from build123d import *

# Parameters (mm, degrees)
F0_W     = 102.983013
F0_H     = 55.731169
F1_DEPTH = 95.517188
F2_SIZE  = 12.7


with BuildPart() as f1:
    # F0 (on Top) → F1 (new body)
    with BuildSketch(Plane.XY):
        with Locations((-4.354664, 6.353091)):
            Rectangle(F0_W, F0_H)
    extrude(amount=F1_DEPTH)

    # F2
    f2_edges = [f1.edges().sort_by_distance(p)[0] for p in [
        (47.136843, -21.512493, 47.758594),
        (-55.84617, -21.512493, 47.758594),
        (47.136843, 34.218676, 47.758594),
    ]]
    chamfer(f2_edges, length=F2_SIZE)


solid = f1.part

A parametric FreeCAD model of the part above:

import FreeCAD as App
import Part
import Sketcher

V = App.Vector
Q = App.Units.Quantity


def edges_at(feature, points):
    """Names of the edges that pass closest to the given points."""
    edges = feature.Shape.Edges
    near = lambda p: min(range(len(edges)), key=lambda i: edges[i].distToShape(Part.Vertex(*p))[0])
    return sorted({f"Edge{near(p) + 1}" for p in points})

doc = App.newDocument("Part")
body = doc.addObject("PartDesign::Body", "Body")

# Sketch on XY plane
sketch1 = body.newObject("Sketcher::SketchObject", "Sketch")
sketch1.AttachmentSupport = (doc.getObject("XY_Plane"), [""])
sketch1.MapMode = "FlatFace"
sketch1.addGeometry([
    Part.LineSegment(V(-56, 34, 0), V(-56, -22, 0)),
    Part.LineSegment(V(-56, -22, 0), V(47, -22, 0)),
    Part.LineSegment(V(47, -22, 0), V(47, 34, 0)),
    Part.LineSegment(V(47, 34, 0), V(-56, 34, 0)),
], False)
sketch1.addConstraint([
    Sketcher.Constraint("Coincident", 0, 2, 1, 1),
    Sketcher.Constraint("Coincident", 1, 2, 2, 1),
    Sketcher.Constraint("Coincident", 2, 2, 3, 1),
    Sketcher.Constraint("Coincident", 3, 2, 0, 1),
    Sketcher.Constraint("Vertical", 0),
    Sketcher.Constraint("Horizontal", 1),
    Sketcher.Constraint("Vertical", 2),
    Sketcher.Constraint("Horizontal", 3),
    Sketcher.Constraint("DistanceY", 0, 2, 0, 1, 55.731169),
    Sketcher.Constraint("DistanceX", 1, 1, 1, 2, 102.983013),
    Sketcher.Constraint("DistanceX", 0, 2, -1, 1, 55.84617),
    Sketcher.Constraint("DistanceY", 0, 2, -1, 1, 21.512494),
])
pad1 = body.newObject("PartDesign::Pad", "Pad")
pad1.Profile = sketch1
pad1.Length = 95.517188
doc.recompute()

chamfer = body.newObject("PartDesign::Chamfer", "Chamfer")
chamfer.Base = (pad1, edges_at(pad1, [(47.137, -21.512, 47.759), (-55.846, -21.512, 47.759), (47.137, 34.219, 47.759)]))
chamfer.Size = Q("0.5 in")

doc.recompute()
